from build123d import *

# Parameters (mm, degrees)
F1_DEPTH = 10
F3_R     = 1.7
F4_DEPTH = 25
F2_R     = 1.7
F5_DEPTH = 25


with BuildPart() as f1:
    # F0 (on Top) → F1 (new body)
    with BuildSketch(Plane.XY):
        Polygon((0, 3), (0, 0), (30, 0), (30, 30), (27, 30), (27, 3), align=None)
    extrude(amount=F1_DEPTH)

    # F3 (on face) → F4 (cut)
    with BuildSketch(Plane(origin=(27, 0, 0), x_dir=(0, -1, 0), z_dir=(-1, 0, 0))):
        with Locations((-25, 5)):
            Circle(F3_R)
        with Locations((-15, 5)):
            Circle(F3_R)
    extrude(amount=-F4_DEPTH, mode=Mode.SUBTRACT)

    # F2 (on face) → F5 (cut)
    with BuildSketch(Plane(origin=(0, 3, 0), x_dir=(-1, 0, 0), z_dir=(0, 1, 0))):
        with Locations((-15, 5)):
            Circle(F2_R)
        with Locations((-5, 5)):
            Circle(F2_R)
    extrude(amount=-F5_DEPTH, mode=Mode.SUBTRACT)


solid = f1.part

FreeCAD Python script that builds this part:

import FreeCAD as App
import Part
import Sketcher

V = App.Vector

doc = App.newDocument("Part")
params = doc.addObject("Spreadsheet::Sheet", "Params")
for row, (alias, value) in enumerate([
    ("sketch1_width", "30 mm"),
    ("sketch1_width2", "3 mm"),
    ("pad1_length", "10 mm"),
    ("sketch2_diameter", "3.4 mm"),
    ("pocket1_length", "25 mm"),
    ("sketch3_diameter", "3.4 mm"),
    ("pocket2_length", "25 mm"),
], start=1):
    params.set(f"A{row}", alias)
    params.set(f"B{row}", "=" + value)
    params.setAlias(f"B{row}", alias)

body = doc.addObject("PartDesign::Body", "Body")

sketch1 = doc.addObject("Sketcher::SketchObject", "Sketch")
body.addObject(sketch1)
sketch1.AttachmentSupport = (doc.XY_Plane, [""])
sketch1.MapMode = "FlatFace"
sketch1.addGeometry([
    Part.LineSegment(V(0, 3, 0), V(0, 0, 0)),
    Part.LineSegment(V(0, 0, 0), V(30, 0, 0)),
    Part.LineSegment(V(30, 0, 0), V(30, 30, 0)),
    Part.LineSegment(V(30, 30, 0), V(27, 30, 0)),
    Part.LineSegment(V(27, 30, 0), V(27, 3, 0)),
    Part.LineSegment(V(27, 3, 0), V(0, 3, 0)),
], False)
sketch1.addConstraint([
    Sketcher.Constraint("Coincident", 0, 2, 1, 1),
    Sketcher.Constraint("Coincident", 1, 2, 2, 1),
    Sketcher.Constraint("Coincident", 2, 2, 3, 1),
    Sketcher.Constraint("Coincident", 3, 2, 4, 1),
    Sketcher.Constraint("Coincident", 4, 2, 5, 1),
    Sketcher.Constraint("Coincident", 5, 2, 0, 1),
    Sketcher.Constraint("Vertical", 0),
    Sketcher.Constraint("Horizontal", 1),
    Sketcher.Constraint("Vertical", 2),
    Sketcher.Constraint("Horizontal", 3),
    Sketcher.Constraint("Vertical", 4),
    Sketcher.Constraint("Horizontal", 5),
    Sketcher.Constraint("Coincident", 0, 2, -1, 1),
    Sketcher.Constraint("Equal", 3, 0),
    Sketcher.Constraint("Equal", 1, 2),
    Sketcher.Constraint("DistanceX", 1, 1, 1, 2, 30.0),
    Sketcher.Constraint("DistanceX", 3, 2, 3, 1, 3.0),
])
sketch1.setExpression("Constraints[15]", "Params.sketch1_width")
sketch1.setExpression("Constraints[16]", "Params.sketch1_width2")
pad1 = doc.addObject("PartDesign::Pad", "Pad")
body.addObject(pad1)
pad1.Profile = sketch1
pad1.setExpression("Length", "Params.pad1_length")

sketch2 = doc.addObject("Sketcher::SketchObject", "Sketch001")
body.addObject(sketch2)
sketch2.AttachmentSupport = (doc.YZ_Plane, [""])
sketch2.MapMode = "FlatFace"
sketch2.AttachmentOffset = App.Placement(V(0, 0, 27), App.Rotation())
sketch2.addGeometry([
    Part.Circle(V(25, 5, 0), V(0, 0, 1), 1.7),
    Part.Circle(V(15, 5, 0), V(0, 0, 1), 1.7),
], False)
sketch2.addConstraint([
    Sketcher.Constraint("Equal", 0, 1),
    Sketcher.Constraint("Horizontal", 0, 3, 1, 3),
    Sketcher.Constraint("Diameter", 0, 3.4),
    Sketcher.Constraint("DistanceX", -1, 1, 0, 3, 25.0),
    Sketcher.Constraint("DistanceY", -1, 1, 0, 3, 5.0),
    Sketcher.Constraint("DistanceX", -1, 1, 1, 3, 15.0),
])
sketch2.setExpression("Constraints[2]", "Params.sketch2_diameter")
pocket1 = doc.addObject("PartDesign::Pocket", "Pocket")
body.addObject(pocket1)
pocket1.Profile = sketch2
pocket1.setExpression("Length", "Params.pocket1_length")
pocket1.Reversed = True

sketch3 = doc.addObject("Sketcher::SketchObject", "Sketch002")
body.addObject(sketch3)
sketch3.AttachmentSupport = (doc.XZ_Plane, [""])
sketch3.MapMode = "FlatFace"
sketch3.AttachmentOffset = App.Placement(V(0, 0, -3), App.Rotation())
sketch3.addGeometry([
    Part.Circle(V(15, 5, 0), V(0, 0, 1), 1.7),
    Part.Circle(V(5, 5, 0), V(0, 0, 1), 1.7),
], False)
sketch3.addConstraint([
    Sketcher.Constraint("Equal", 0, 1),
    Sketcher.Constraint("Horizontal", 0, 3, 1, 3),
    Sketcher.Constraint("Diameter", 0, 3.4),
    Sketcher.Constraint("DistanceX", -1, 1, 0, 3, 15.0),
    Sketcher.Constraint("DistanceY", -1, 1, 0, 3, 5.0),
    Sketcher.Constraint("DistanceX", -1, 1, 1, 3, 5.0),
])
sketch3.setExpression("Constraints[2]", "Params.sketch3_diameter")
pocket2 = doc.addObject("PartDesign::Pocket", "Pocket001")
body.addObject(pocket2)
pocket2.Profile = sketch3
pocket2.setExpression("Length", "Params.pocket2_length")
pocket2.Reversed = True

doc.recompute()
